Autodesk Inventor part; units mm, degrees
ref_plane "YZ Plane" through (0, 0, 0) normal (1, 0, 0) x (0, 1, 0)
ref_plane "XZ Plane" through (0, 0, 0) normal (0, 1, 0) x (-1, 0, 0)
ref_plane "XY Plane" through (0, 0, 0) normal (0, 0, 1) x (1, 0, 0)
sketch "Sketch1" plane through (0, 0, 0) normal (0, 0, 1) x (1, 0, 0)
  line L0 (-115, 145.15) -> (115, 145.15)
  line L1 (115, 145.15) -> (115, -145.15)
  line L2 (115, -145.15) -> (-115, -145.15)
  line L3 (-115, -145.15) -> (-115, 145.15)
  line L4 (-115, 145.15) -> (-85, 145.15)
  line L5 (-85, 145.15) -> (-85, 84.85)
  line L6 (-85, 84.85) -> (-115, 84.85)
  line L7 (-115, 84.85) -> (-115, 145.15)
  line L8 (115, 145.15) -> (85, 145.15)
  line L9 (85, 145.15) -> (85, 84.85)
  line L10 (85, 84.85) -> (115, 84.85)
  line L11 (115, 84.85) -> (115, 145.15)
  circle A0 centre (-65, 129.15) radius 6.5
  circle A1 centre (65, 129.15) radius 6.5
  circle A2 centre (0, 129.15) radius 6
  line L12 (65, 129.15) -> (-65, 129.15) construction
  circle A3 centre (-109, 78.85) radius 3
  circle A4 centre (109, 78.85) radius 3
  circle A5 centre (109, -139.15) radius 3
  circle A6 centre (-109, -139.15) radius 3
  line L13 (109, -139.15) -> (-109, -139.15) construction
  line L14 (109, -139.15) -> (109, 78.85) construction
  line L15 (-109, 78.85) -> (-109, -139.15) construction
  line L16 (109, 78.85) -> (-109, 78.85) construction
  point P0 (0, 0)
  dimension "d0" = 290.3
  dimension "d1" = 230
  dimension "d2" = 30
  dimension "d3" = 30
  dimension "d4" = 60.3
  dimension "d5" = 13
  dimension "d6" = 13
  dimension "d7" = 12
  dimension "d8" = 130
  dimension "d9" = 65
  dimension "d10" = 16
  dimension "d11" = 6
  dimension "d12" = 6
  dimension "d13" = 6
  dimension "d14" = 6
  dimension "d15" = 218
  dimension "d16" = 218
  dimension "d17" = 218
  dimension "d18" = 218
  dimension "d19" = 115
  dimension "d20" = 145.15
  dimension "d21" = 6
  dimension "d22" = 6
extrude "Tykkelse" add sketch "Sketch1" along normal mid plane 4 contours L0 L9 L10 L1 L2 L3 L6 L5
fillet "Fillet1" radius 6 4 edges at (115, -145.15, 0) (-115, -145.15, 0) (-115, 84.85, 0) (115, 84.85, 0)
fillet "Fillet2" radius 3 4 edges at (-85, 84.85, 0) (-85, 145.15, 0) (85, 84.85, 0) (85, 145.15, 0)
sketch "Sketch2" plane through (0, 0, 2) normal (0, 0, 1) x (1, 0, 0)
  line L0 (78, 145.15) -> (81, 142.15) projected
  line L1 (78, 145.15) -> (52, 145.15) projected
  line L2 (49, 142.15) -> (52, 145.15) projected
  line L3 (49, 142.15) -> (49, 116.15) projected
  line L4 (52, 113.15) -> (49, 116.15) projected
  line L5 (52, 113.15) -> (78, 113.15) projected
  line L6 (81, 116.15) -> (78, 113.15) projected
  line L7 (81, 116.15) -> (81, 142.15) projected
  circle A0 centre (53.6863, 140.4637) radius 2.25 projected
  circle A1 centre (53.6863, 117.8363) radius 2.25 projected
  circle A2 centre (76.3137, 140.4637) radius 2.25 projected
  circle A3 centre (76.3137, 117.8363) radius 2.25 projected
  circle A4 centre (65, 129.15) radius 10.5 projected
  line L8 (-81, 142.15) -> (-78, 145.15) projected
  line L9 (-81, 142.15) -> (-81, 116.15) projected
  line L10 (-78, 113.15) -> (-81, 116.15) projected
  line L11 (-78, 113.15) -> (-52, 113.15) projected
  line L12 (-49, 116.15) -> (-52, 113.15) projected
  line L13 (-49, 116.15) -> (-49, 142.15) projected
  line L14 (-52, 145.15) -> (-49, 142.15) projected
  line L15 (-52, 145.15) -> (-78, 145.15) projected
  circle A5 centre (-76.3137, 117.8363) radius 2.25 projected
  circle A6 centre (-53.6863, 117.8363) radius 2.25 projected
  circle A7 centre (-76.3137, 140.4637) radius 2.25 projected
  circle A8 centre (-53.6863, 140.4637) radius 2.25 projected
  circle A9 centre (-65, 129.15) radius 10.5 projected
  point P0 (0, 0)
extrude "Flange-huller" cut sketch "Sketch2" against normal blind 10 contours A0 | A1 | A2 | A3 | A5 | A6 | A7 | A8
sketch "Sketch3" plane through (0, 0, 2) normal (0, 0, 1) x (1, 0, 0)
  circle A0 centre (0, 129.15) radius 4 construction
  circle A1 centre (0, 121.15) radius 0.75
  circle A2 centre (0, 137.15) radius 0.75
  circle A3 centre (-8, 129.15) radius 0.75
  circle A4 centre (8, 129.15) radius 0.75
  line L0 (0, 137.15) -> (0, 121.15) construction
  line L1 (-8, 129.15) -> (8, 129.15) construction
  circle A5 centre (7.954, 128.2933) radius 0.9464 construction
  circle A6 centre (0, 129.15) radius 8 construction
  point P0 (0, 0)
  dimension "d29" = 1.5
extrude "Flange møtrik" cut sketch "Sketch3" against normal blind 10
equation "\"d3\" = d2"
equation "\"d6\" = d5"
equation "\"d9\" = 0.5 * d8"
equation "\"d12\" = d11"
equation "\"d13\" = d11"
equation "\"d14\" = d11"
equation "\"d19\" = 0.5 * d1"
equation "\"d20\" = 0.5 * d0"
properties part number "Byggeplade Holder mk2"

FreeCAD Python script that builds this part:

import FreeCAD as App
import Part
import Sketcher
from FreeCAD import Vector


def edges_at(feature, points):
    """Names of the edges that pass closest to the given points."""
    edges = feature.Shape.Edges
    near = lambda p: min(range(len(edges)), key=lambda i: edges[i].distToShape(Part.Vertex(*p))[0])
    return sorted({f"Edge{near(p) + 1}" for p in points})

doc = App.newDocument("Part")
body = doc.addObject("PartDesign::Body", "Body")

sketch1 = body.newObject("Sketcher::SketchObject", "Sketch")
sketch1.AttachmentSupport = (doc.getObject("XY_Plane"), [""])
sketch1.MapMode = "FlatFace"
sketch1.addGeometry(Part.LineSegment(Vector(85, 145.15, 0), Vector(-85, 145.15, 0)), False)
sketch1.addGeometry(Part.LineSegment(Vector(-85, 145.15, 0), Vector(-85, 84.85, 0)), False)
sketch1.addGeometry(Part.LineSegment(Vector(-85, 84.85, 0), Vector(-115, 84.85, 0)), False)
sketch1.addGeometry(Part.LineSegment(Vector(-115, 84.85, 0), Vector(-115, -145.15, 0)), False)
sketch1.addGeometry(Part.LineSegment(Vector(-115, -145.15, 0), Vector(115, -145.15, 0)), False)
sketch1.addGeometry(Part.LineSegment(Vector(115, -145.15, 0), Vector(115, 84.85, 0)), False)
sketch1.addGeometry(Part.LineSegment(Vector(115, 84.85, 0), Vector(85, 84.85, 0)), False)
sketch1.addGeometry(Part.LineSegment(Vector(85, 84.85, 0), Vector(85, 145.15, 0)), False)
sketch1.addGeometry(Part.Circle(Vector(-109, -139.15, 0), Vector(0, 0, 1), 3), False)
sketch1.addGeometry(Part.Circle(Vector(109, -139.15, 0), Vector(0, 0, 1), 3), False)
sketch1.addGeometry(Part.Circle(Vector(-109, 78.85, 0), Vector(0, 0, 1), 3), False)
sketch1.addGeometry(Part.Circle(Vector(-65, 129.15, 0), Vector(0, 0, 1), 6.5), False)
sketch1.addGeometry(Part.Circle(Vector(0, 129.15, 0), Vector(0, 0, 1), 6), False)
sketch1.addGeometry(Part.Circle(Vector(109, 78.85, 0), Vector(0, 0, 1), 3), False)
sketch1.addGeometry(Part.Circle(Vector(65, 129.15, 0), Vector(0, 0, 1), 6.5), False)
sketch1.addConstraint(Sketcher.Constraint("Coincident", 0, 2, 1, 1))
sketch1.addConstraint(Sketcher.Constraint("Coincident", 1, 2, 2, 1))
sketch1.addConstraint(Sketcher.Constraint("Coincident", 2, 2, 3, 1))
sketch1.addConstraint(Sketcher.Constraint("Coincident", 3, 2, 4, 1))
sketch1.addConstraint(Sketcher.Constraint("Coincident", 4, 2, 5, 1))
sketch1.addConstraint(Sketcher.Constraint("Coincident", 5, 2, 6, 1))
sketch1.addConstraint(Sketcher.Constraint("Coincident", 6, 2, 7, 1))
sketch1.addConstraint(Sketcher.Constraint("Coincident", 7, 2, 0, 1))
sketch1.addConstraint(Sketcher.Constraint("Horizontal", 0))
sketch1.addConstraint(Sketcher.Constraint("Vertical", 1))
sketch1.addConstraint(Sketcher.Constraint("Horizontal", 2))
sketch1.addConstraint(Sketcher.Constraint("Vertical", 3))
sketch1.addConstraint(Sketcher.Constraint("Horizontal", 4))
sketch1.addConstraint(Sketcher.Constraint("Vertical", 5))
sketch1.addConstraint(Sketcher.Constraint("Horizontal", 6))
sketch1.addConstraint(Sketcher.Constraint("Vertical", 7))
sketch1.addConstraint(Sketcher.Constraint("Equal", 8, 9))
sketch1.addConstraint(Sketcher.Constraint("Equal", 9, 10))
sketch1.addConstraint(Sketcher.Constraint("Equal", 10, 13))
sketch1.addConstraint(Sketcher.Constraint("Equal", 11, 14))
sketch1.addConstraint(Sketcher.Constraint("Symmetric", 8, 3, 9, 3, -2))
sketch1.addConstraint(Sketcher.Constraint("Symmetric", 10, 3, 13, 3, -2))
sketch1.addConstraint(Sketcher.Constraint("Symmetric", 11, 3, 14, 3, -2))
sketch1.addConstraint(Sketcher.Constraint("Symmetric", 2, 2, 5, 2, -2))
sketch1.addConstraint(Sketcher.Constraint("PointOnObject", 12, 3, -2))
sketch1.addConstraint(Sketcher.Constraint("Horizontal", 11, 3, 12, 3))
sketch1.addConstraint(Sketcher.Constraint("Vertical", 8, 3, 10, 3))
sketch1.addConstraint(Sketcher.Constraint("Equal", 2, 6))
sketch1.addConstraint(Sketcher.Constraint("Equal", 4, 3))
sketch1.addConstraint(Sketcher.Constraint("Diameter", 8, 6.0))
sketch1.addConstraint(Sketcher.Constraint("Diameter", 11, 13.0))
sketch1.addConstraint(Sketcher.Constraint("Diameter", 12, 12.0))
sketch1.addConstraint(Sketcher.Constraint("DistanceX", 2, 2, 2, 1, 30.0))
sketch1.addConstraint(Sketcher.Constraint("DistanceX", 4, 1, 4, 2, 230.0))
sketch1.addConstraint(Sketcher.Constraint("DistanceY", 1, 2, 1, 1, 60.3))
sketch1.addConstraint(Sketcher.Constraint("DistanceX", 11, 3, -1, 1, 65.0))
sketch1.addConstraint(Sketcher.Constraint("DistanceX", 8, 3, 9, 3, 218.0))
sketch1.addConstraint(Sketcher.Constraint("DistanceY", 8, 3, 10, 3, 218.0))
sketch1.addConstraint(Sketcher.Constraint("DistanceY", 11, 3, 0, 2, 16.0))
sketch1.addConstraint(Sketcher.Constraint("DistanceY", 10, 3, 1, 2, 6.0))
sketch1.addConstraint(Sketcher.Constraint("DistanceY", -1, 1, 0, 2, 145.15))
pad1 = body.newObject("PartDesign::Pad", "Pad")
pad1.Profile = sketch1
pad1.Length = 4
pad1.Midplane = True
doc.recompute()

fillet = body.newObject("PartDesign::Fillet", "Fillet")
fillet.Base = (pad1, edges_at(pad1, [
    (115, -145.15, 0),
    (-115, -145.15, 0),
    (-115, 84.85, 0),
    (115, 84.85, 0),
]))
fillet.Radius = 6
doc.recompute()

fillet2 = body.newObject("PartDesign::Fillet", "Fillet001")
fillet2.Base = (fillet, edges_at(fillet, [
    (-85, 84.85, 0),
    (-85, 145.15, 0),
    (85, 84.85, 0),
    (85, 145.15, 0),
]))
fillet2.Radius = 3

sketch2 = body.newObject("Sketcher::SketchObject", "Sketch001")
sketch2.AttachmentSupport = (doc.getObject("XY_Plane"), [""])
sketch2.MapMode = "FlatFace"
sketch2.AttachmentOffset = App.Placement(Vector(0, 0, 2), App.Rotation())
sketch2.addGeometry(Part.Circle(Vector(53.6863, 140.4637, 0), Vector(0, 0, 1), 2.25), False)
sketch2.addGeometry(Part.Circle(Vector(53.6863, 117.8363, 0), Vector(0, 0, 1), 2.25), False)
sketch2.addGeometry(Part.Circle(Vector(76.3137, 140.4637, 0), Vector(0, 0, 1), 2.25), False)
sketch2.addGeometry(Part.Circle(Vector(76.3137, 117.8363, 0), Vector(0, 0, 1), 2.25), False)
sketch2.addGeometry(Part.Circle(Vector(-76.3137, 117.8363, 0), Vector(0, 0, 1), 2.25), False)
sketch2.addGeometry(Part.Circle(Vector(-53.6863, 117.8363, 0), Vector(0, 0, 1), 2.25), False)
sketch2.addGeometry(Part.Circle(Vector(-76.3137, 140.4637, 0), Vector(0, 0, 1), 2.25), False)
sketch2.addGeometry(Part.Circle(Vector(-53.6863, 140.4637, 0), Vector(0, 0, 1), 2.25), False)
sketch2.addConstraint(Sketcher.Constraint("Equal", 0, 1))
sketch2.addConstraint(Sketcher.Constraint("Equal", 1, 2))
sketch2.addConstraint(Sketcher.Constraint("Equal", 2, 3))
sketch2.addConstraint(Sketcher.Constraint("Equal", 3, 4))
sketch2.addConstraint(Sketcher.Constraint("Equal", 4, 5))
sketch2.addConstraint(Sketcher.Constraint("Equal", 5, 6))
sketch2.addConstraint(Sketcher.Constraint("Equal", 6, 7))
sketch2.addConstraint(Sketcher.Constraint("Symmetric", 3, 3, 4, 3, -2))
sketch2.addConstraint(Sketcher.Constraint("Symmetric", 1, 3, 5, 3, -2))
sketch2.addConstraint(Sketcher.Constraint("Symmetric", 2, 3, 6, 3, -2))
sketch2.addConstraint(Sketcher.Constraint("Symmetric", 0, 3, 7, 3, -2))
sketch2.addConstraint(Sketcher.Constraint("Horizontal", 0, 3, 2, 3))
sketch2.addConstraint(Sketcher.Constraint("Horizontal", 1, 3, 3, 3))
sketch2.addConstraint(Sketcher.Constraint("Vertical", 0, 3, 1, 3))
sketch2.addConstraint(Sketcher.Constraint("Vertical", 2, 3, 3, 3))
sketch2.addConstraint(Sketcher.Constraint("Diameter", 0, 4.5))
sketch2.addConstraint(Sketcher.Constraint("DistanceX", 4, 3, 1, 3, 130.0))
sketch2.addConstraint(Sketcher.Constraint("DistanceX", -1, 1, 0, 3, 53.6863))
sketch2.addConstraint(Sketcher.Constraint("DistanceY", -1, 1, 0, 3, 140.4637))
sketch2.addConstraint(Sketcher.Constraint("DistanceY", -1, 1, 1, 3, 117.8363))
pocket1 = body.newObject("PartDesign::Pocket", "Pocket")
pocket1.Profile = sketch2
pocket1.Length = 10

sketch3 = body.newObject("Sketcher::SketchObject", "Sketch002")
sketch3.AttachmentSupport = (doc.getObject("XY_Plane"), [""])
sketch3.MapMode = "FlatFace"
sketch3.AttachmentOffset = App.Placement(Vector(0, 0, 2), App.Rotation())
sketch3.addGeometry(Part.Circle(Vector(0, 121.15, 0), Vector(0, 0, 1), 0.75), False)
sketch3.addGeometry(Part.Circle(Vector(0, 137.15, 0), Vector(0, 0, 1), 0.75), False)
sketch3.addGeometry(Part.Circle(Vector(-8, 129.15, 0), Vector(0, 0, 1), 0.75), False)
sketch3.addGeometry(Part.Circle(Vector(8, 129.15, 0), Vector(0, 0, 1), 0.75), False)
sketch3.addConstraint(Sketcher.Constraint("Equal", 0, 1))
sketch3.addConstraint(Sketcher.Constraint("Equal", 1, 2))
sketch3.addConstraint(Sketcher.Constraint("Equal", 2, 3))
sketch3.addConstraint(Sketcher.Constraint("Symmetric", 2, 3, 3, 3, -2))
sketch3.addConstraint(Sketcher.Constraint("PointOnObject", 0, 3, -2))
sketch3.addConstraint(Sketcher.Constraint("PointOnObject", 1, 3, -2))
sketch3.addConstraint(Sketcher.Constraint("Diameter", 0, 1.5))
sketch3.addConstraint(Sketcher.Constraint("DistanceX", 2, 3, -1, 1, 8.0))
sketch3.addConstraint(Sketcher.Constraint("DistanceY", 0, 3, 1, 3, 16.0))
sketch3.addConstraint(Sketcher.Constraint("DistanceY", 0, 3, 2, 3, 8.0))
sketch3.addConstraint(Sketcher.Constraint("DistanceY", -1, 1, 0, 3, 121.15))
pocket2 = body.newObject("PartDesign::Pocket", "Pocket001")
pocket2.Profile = sketch3
pocket2.Length = 10

doc.recompute()
